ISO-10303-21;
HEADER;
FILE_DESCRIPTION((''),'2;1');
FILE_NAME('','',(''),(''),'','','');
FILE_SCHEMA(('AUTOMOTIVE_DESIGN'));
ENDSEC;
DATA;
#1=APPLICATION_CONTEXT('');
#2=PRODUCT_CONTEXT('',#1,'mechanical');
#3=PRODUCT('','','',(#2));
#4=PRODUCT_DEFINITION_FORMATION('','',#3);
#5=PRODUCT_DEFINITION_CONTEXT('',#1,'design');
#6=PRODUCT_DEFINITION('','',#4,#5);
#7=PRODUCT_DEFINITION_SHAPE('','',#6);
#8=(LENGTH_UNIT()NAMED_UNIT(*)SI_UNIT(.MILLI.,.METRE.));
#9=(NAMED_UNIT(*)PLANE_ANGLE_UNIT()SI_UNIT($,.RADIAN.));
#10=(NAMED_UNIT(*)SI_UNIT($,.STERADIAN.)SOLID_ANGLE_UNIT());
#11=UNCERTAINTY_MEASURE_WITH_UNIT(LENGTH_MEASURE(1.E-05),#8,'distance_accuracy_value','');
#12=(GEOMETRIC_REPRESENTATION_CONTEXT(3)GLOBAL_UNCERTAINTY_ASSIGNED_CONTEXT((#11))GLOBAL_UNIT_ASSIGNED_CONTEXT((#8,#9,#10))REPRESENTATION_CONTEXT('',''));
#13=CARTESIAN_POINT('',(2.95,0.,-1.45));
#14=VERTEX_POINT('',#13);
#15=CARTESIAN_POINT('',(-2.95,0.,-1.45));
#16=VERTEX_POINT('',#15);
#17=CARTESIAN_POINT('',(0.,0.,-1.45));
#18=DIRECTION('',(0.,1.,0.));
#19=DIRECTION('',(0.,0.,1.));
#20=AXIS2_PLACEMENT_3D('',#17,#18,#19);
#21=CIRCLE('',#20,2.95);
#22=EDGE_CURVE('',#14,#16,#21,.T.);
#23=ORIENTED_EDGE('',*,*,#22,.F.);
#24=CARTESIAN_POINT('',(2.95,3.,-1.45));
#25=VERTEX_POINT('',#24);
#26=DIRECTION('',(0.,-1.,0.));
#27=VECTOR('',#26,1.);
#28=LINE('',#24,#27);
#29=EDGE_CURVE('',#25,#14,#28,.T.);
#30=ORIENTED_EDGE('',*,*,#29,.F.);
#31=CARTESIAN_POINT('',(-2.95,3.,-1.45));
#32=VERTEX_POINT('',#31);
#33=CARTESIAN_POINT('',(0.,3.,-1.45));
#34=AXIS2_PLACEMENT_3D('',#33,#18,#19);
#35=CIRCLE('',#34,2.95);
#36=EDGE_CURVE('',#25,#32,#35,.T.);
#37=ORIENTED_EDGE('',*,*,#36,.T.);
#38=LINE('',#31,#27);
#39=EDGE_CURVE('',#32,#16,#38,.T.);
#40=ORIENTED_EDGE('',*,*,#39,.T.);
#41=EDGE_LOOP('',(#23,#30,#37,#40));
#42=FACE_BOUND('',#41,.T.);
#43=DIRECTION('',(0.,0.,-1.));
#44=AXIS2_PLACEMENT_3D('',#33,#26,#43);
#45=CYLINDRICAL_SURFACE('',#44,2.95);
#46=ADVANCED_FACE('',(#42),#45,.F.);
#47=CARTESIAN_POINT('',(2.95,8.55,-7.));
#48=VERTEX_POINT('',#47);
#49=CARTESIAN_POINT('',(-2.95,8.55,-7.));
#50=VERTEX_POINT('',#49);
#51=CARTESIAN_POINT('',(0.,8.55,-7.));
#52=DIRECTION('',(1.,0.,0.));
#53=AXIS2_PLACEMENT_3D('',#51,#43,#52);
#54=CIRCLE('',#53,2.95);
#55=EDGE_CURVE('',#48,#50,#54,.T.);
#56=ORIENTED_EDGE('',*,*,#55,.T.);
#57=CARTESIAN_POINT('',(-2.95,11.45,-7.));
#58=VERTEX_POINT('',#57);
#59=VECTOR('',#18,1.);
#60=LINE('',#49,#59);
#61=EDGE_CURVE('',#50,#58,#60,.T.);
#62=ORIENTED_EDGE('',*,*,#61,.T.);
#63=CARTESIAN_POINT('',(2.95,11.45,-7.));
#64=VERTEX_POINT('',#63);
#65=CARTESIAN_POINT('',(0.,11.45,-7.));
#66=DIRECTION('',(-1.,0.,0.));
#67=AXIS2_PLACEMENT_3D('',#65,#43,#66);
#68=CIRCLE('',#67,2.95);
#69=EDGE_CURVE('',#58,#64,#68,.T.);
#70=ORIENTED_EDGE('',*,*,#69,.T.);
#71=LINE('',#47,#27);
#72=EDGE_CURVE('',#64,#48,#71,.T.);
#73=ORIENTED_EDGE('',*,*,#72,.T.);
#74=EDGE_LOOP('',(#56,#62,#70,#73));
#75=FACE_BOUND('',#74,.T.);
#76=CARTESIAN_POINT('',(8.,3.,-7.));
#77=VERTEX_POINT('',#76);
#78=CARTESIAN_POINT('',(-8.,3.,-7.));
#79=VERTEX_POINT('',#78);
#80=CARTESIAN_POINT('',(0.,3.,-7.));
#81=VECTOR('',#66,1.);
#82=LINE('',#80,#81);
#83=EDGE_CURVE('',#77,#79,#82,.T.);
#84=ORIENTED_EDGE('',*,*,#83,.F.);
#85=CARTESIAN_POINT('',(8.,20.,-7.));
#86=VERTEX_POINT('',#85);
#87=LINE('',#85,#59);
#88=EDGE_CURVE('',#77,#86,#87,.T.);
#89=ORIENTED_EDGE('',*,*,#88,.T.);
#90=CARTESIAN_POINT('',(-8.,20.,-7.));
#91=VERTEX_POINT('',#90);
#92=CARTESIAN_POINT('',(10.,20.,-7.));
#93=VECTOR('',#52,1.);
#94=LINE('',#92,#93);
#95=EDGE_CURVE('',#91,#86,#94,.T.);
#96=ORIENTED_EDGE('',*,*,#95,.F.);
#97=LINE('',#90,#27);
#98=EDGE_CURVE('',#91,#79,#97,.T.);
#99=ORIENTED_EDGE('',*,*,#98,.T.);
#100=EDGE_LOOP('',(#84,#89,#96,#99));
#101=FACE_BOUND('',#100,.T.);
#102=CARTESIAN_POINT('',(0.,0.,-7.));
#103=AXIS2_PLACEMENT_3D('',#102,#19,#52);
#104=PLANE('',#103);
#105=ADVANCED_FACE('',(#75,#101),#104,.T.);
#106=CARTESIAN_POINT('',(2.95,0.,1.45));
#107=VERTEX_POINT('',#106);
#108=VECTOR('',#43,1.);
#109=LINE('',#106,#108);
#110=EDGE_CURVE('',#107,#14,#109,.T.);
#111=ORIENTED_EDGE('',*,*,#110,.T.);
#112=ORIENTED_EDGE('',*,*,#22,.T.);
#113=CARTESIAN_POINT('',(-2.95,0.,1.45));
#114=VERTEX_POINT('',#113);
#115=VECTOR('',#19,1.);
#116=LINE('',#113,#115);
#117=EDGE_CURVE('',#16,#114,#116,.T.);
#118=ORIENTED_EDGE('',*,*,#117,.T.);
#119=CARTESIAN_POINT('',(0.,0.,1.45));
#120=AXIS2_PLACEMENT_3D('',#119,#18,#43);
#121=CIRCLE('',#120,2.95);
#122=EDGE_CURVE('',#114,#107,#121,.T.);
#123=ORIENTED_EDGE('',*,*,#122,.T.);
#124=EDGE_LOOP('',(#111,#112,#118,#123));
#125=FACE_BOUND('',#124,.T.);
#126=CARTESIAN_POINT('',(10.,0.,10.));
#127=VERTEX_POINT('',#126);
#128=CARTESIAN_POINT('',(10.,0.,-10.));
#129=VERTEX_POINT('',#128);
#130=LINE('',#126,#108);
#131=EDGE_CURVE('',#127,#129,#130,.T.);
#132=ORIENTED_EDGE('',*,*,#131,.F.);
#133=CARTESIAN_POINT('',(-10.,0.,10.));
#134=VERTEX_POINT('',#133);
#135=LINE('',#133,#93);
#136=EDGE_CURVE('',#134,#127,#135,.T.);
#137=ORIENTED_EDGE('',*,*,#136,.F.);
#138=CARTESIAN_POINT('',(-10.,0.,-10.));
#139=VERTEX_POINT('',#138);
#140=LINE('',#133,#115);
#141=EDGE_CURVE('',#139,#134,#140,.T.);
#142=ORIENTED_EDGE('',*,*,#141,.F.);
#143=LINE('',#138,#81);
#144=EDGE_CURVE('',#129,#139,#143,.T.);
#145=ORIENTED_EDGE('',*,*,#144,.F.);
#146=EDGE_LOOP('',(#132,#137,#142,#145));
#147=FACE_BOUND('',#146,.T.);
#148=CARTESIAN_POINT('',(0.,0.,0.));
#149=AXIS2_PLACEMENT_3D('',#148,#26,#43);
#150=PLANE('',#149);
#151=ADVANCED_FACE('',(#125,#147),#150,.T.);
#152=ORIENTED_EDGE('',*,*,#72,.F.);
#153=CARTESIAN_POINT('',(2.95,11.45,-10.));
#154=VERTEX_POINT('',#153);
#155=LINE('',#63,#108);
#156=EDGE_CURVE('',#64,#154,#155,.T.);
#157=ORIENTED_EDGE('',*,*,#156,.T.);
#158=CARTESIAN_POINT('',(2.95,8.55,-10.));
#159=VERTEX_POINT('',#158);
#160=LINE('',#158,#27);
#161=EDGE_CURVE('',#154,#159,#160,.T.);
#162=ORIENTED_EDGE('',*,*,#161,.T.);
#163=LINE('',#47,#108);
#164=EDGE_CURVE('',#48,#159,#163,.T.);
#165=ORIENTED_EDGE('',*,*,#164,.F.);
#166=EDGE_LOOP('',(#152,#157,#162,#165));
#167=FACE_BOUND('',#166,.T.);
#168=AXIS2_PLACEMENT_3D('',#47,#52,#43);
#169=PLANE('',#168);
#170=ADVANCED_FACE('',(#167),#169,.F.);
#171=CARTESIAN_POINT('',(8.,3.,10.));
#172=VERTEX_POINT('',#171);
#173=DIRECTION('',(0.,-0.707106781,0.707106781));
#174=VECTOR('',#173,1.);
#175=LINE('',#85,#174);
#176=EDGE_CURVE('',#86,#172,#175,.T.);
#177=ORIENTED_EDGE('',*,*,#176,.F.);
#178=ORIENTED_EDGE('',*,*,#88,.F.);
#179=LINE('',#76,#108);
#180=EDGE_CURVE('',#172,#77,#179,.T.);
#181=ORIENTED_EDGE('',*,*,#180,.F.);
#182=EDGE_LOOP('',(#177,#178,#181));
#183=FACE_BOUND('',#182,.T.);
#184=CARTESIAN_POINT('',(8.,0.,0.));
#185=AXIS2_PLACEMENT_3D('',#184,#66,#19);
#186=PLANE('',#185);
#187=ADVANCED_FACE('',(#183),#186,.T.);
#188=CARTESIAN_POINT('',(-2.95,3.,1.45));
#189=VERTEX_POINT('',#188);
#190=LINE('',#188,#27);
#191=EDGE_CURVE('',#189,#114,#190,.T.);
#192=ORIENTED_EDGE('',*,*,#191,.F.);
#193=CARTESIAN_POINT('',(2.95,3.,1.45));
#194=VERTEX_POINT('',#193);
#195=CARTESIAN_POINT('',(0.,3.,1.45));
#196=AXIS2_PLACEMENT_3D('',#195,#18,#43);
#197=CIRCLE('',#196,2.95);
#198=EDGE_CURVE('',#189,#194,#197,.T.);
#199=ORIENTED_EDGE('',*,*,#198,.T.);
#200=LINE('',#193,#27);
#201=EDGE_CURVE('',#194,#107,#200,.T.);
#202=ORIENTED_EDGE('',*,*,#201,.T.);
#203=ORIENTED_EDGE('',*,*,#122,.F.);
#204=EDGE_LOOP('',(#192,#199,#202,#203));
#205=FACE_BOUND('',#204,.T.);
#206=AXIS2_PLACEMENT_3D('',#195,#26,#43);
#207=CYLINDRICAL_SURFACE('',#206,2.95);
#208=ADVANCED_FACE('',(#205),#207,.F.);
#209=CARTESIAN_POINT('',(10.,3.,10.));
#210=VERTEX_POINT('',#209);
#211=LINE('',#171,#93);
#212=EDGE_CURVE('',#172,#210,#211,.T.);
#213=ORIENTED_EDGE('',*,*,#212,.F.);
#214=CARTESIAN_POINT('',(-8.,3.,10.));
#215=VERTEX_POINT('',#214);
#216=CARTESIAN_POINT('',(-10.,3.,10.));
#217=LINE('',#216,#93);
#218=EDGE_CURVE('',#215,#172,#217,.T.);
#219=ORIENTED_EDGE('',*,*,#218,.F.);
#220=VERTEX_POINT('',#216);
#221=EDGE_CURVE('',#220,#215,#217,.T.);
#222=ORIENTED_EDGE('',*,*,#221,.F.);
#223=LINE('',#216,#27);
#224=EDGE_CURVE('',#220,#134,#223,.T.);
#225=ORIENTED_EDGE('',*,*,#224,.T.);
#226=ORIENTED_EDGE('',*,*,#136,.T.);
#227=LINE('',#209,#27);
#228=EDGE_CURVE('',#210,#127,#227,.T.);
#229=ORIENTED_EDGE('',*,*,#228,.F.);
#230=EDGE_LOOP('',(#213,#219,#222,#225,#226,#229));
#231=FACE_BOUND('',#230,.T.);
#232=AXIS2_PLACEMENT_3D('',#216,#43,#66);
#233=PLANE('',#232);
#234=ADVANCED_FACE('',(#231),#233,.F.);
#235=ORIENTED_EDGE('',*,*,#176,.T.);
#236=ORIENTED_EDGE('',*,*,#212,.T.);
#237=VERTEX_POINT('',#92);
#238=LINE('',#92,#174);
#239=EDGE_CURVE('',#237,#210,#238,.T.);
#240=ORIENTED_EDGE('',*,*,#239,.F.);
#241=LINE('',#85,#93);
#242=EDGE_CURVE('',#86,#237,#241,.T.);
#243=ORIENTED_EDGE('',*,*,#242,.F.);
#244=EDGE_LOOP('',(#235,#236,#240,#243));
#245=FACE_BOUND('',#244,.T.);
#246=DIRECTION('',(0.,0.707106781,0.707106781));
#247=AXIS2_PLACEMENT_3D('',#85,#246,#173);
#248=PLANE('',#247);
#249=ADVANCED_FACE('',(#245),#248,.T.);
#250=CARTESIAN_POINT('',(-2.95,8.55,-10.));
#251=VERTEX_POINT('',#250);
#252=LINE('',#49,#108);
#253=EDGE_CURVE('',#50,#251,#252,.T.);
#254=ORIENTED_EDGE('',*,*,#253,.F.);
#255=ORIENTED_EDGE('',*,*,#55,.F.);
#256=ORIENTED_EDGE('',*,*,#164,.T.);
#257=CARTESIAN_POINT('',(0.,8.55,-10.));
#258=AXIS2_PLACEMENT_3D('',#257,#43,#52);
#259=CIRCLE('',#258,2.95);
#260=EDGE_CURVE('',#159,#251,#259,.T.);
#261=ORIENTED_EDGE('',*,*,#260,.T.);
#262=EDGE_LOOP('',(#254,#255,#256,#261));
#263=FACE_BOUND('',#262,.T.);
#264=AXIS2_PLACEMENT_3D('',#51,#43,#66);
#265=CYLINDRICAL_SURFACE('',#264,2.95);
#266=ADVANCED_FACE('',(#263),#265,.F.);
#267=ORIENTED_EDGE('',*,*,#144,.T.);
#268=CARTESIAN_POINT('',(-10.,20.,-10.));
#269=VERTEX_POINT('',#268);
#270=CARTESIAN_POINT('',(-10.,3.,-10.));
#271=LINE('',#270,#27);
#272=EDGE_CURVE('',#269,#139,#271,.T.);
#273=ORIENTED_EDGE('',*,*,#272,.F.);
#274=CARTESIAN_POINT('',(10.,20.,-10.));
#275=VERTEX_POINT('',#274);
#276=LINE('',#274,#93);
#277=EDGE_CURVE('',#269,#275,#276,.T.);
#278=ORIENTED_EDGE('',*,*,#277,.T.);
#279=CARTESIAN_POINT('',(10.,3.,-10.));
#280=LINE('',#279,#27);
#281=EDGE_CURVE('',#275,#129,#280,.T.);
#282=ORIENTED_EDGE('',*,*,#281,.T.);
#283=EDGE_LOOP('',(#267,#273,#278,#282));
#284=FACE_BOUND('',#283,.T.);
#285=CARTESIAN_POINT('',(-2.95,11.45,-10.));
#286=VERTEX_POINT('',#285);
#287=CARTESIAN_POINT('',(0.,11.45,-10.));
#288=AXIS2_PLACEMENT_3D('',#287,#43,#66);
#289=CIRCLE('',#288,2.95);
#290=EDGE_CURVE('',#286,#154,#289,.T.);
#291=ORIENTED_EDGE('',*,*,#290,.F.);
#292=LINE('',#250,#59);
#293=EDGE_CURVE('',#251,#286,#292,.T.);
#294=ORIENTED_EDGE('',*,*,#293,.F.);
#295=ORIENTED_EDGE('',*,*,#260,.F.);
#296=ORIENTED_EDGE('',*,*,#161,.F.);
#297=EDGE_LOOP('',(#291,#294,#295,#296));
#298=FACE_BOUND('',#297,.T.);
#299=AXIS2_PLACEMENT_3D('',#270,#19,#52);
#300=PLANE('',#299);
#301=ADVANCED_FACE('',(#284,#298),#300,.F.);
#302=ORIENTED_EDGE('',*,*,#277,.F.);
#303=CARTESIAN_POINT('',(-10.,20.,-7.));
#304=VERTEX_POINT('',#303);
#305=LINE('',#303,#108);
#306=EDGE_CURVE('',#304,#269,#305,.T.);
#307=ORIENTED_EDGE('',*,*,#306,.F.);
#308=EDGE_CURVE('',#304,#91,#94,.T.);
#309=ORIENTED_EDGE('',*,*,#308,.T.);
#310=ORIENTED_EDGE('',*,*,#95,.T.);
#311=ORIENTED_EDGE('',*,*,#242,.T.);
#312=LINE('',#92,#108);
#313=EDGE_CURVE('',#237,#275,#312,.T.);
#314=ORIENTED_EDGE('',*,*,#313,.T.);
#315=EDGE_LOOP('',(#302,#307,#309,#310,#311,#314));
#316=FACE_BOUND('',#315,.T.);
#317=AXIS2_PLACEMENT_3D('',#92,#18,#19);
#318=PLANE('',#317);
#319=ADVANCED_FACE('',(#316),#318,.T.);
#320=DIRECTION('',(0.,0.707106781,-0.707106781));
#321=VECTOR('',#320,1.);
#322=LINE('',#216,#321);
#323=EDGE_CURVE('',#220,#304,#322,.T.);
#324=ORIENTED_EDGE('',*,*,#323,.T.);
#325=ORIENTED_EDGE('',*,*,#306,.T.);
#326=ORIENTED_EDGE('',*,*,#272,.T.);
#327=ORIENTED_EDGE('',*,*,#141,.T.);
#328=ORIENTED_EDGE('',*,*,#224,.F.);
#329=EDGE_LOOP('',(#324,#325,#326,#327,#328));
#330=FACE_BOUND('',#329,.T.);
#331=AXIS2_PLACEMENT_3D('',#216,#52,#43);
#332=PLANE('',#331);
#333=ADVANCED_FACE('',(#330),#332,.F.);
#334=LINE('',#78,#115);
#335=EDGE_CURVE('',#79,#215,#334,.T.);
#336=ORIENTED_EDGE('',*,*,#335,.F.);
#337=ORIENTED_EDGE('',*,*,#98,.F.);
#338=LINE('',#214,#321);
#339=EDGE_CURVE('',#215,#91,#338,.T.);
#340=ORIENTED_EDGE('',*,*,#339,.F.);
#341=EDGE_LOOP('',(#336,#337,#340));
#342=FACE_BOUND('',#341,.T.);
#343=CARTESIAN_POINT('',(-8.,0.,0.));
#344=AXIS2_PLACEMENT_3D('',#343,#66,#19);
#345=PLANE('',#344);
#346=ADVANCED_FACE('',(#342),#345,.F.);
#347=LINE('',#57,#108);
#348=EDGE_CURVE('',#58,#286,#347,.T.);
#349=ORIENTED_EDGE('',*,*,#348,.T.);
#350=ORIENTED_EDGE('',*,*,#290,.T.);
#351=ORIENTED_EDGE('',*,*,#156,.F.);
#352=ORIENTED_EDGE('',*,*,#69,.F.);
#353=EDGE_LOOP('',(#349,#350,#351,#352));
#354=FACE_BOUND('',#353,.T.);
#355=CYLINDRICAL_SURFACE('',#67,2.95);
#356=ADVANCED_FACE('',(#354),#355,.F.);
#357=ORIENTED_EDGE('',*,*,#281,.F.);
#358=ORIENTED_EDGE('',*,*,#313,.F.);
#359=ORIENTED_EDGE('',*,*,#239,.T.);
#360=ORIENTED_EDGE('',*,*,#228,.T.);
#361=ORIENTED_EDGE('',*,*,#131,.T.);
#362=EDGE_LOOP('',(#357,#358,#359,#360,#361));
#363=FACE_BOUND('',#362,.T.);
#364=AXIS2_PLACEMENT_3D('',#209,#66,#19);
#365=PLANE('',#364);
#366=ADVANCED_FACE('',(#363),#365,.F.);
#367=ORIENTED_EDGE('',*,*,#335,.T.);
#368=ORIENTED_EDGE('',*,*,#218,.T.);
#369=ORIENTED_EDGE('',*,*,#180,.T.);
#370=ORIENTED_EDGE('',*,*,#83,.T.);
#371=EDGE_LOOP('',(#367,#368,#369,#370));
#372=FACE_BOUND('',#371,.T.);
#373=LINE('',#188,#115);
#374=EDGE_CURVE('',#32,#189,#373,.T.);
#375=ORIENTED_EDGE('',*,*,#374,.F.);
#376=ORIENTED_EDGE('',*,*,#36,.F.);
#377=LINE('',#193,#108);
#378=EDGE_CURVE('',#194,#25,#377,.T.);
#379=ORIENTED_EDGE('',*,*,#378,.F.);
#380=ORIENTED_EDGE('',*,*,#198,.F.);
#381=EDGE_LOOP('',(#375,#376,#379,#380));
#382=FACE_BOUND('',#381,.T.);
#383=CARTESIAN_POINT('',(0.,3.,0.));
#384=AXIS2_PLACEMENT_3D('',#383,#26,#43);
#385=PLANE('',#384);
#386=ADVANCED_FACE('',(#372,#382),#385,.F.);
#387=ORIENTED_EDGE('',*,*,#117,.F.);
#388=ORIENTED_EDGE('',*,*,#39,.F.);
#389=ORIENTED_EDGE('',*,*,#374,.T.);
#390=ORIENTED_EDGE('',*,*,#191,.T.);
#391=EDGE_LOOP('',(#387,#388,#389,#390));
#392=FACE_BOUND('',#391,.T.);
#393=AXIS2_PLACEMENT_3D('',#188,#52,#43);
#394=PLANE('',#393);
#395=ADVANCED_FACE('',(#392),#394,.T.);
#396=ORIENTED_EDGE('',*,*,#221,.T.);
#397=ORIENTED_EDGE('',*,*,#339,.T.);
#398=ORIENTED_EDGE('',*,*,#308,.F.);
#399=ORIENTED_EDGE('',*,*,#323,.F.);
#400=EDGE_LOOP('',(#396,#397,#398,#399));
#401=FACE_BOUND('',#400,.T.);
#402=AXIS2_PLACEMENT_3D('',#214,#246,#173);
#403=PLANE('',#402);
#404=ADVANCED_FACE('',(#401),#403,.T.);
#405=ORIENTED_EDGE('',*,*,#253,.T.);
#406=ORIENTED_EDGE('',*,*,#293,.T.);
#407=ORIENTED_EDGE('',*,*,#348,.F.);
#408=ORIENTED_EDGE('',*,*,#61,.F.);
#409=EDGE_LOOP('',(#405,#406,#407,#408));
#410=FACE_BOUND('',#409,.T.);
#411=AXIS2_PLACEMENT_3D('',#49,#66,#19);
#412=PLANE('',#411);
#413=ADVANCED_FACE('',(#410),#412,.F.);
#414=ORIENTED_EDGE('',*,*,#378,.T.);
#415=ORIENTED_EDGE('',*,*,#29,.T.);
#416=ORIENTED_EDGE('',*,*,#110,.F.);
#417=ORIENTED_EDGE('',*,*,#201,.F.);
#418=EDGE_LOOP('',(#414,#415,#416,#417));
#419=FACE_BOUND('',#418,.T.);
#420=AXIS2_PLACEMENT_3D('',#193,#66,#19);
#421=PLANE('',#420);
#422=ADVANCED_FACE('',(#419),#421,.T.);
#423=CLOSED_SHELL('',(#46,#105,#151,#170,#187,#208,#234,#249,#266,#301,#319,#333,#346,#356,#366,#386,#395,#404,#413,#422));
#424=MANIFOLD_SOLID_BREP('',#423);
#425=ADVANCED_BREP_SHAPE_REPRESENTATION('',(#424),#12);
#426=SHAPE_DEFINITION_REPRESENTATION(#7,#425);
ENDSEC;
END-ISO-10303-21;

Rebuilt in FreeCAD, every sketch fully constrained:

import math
import FreeCAD as App
import Part
import Sketcher


def add_polygon(sketch, points):
    """Adds a closed chain of lines whose ends are joined by coincident constraints."""
    first, n = sketch.GeometryCount, len(points)
    for a, b in zip(points, points[1:] + points[:1]):
        sketch.addGeometry(Part.LineSegment(App.Vector(*a, 0), App.Vector(*b, 0)), False)
    for i in range(n):
        sketch.addConstraint(Sketcher.Constraint("Coincident", first + i, 2, first + (i + 1) % n, 1))

doc = App.newDocument("Part")
params = doc.addObject("Spreadsheet::Sheet", "Params")
for row, (alias, value) in enumerate([
    ("sketch1_width", "20 mm"),
    ("sketch1_radius", "2.95 mm"),
    ("sketch1_height", "2.9 mm"),
    ("pad1_length", "3 mm"),
    ("sketch2_width", "20 mm"),
    ("sketch2_radius", "2.95 mm"),
    ("sketch2_height", "2.9 mm"),
    ("pad2_length", "3 mm"),
    ("sketch3_width", "17 mm"),
    ("pad3_length", "2 mm"),
    ("sketch4_width", "17 mm"),
    ("pad4_length", "2 mm"),
], start=1):
    params.set(f"A{row}", alias)
    params.set(f"B{row}", "=" + value)
    params.setAlias(f"B{row}", alias)

body = doc.addObject("PartDesign::Body", "Body")

# Sketch on XZ plane
sketch1 = body.newObject("Sketcher::SketchObject", "Sketch")
sketch1.AttachmentSupport = (doc.getObject("XZ_Plane"), [""])
sketch1.MapMode = "FlatFace"
add_polygon(sketch1, [(-10, -10), (-10, 10), (10, 10), (10, -10)])  # lines 0-3
sketch1.addGeometry(Part.ArcOfCircle(Part.Circle(App.Vector(0, 1.45, 0), App.Vector(0, 0, 1), 2.95), math.radians(0), math.radians(180)), False)  # 4
sketch1.addGeometry(Part.LineSegment(App.Vector(-2.95, 1.45, 0), App.Vector(-2.95, -1.45, 0)), False)  # 5
sketch1.addGeometry(Part.ArcOfCircle(Part.Circle(App.Vector(0, -1.45, 0), App.Vector(0, 0, 1), 2.95), math.radians(180), math.radians(360)), False)  # 6
sketch1.addGeometry(Part.LineSegment(App.Vector(2.95, -1.45, 0), App.Vector(2.95, 1.45, 0)), False)  # 7
sketch1.addConstraint(Sketcher.Constraint("Tangent", 4, 2, 5, 1))
sketch1.addConstraint(Sketcher.Constraint("Tangent", 5, 2, 6, 1))
sketch1.addConstraint(Sketcher.Constraint("Tangent", 6, 2, 7, 1))
sketch1.addConstraint(Sketcher.Constraint("Tangent", 7, 2, 4, 1))
sketch1.addConstraint(Sketcher.Constraint("Vertical", 0))
sketch1.addConstraint(Sketcher.Constraint("Horizontal", 1))
sketch1.addConstraint(Sketcher.Constraint("Vertical", 2))
sketch1.addConstraint(Sketcher.Constraint("Horizontal", 3))
sketch1.addConstraint(Sketcher.Constraint("Vertical", 5))
sketch1.addConstraint(Sketcher.Constraint("Vertical", 7))
sketch1.addConstraint(Sketcher.Constraint("Symmetric", 4, 3, 6, 3, -1, 1))
sketch1.addConstraint(Sketcher.Constraint("Symmetric", 0, 2, 2, 2, -1, 1))
sketch1.addConstraint(Sketcher.Constraint("Equal", 3, 0))
sketch1.addConstraint(Sketcher.Constraint("DistanceX", 1, 1, 1, 2, 20.0))
sketch1.addConstraint(Sketcher.Constraint("Radius", 4, 2.95))
sketch1.addConstraint(Sketcher.Constraint("DistanceY", 5, 2, 5, 1, 2.9))
sketch1.setExpression("Constraints[17]", "Params.sketch1_width")
sketch1.setExpression("Constraints[18]", "Params.sketch1_radius")
sketch1.setExpression("Constraints[19]", "Params.sketch1_height")
pad1 = body.newObject("PartDesign::Pad", "Pad")
pad1.Profile = sketch1
pad1.setExpression("Length", "Params.pad1_length")
pad1.Reversed = True

# Sketch on XY plane
sketch2 = body.newObject("Sketcher::SketchObject", "Sketch001")
sketch2.AttachmentSupport = (doc.getObject("XY_Plane"), [""])
sketch2.MapMode = "FlatFace"
sketch2.AttachmentOffset = App.Placement(App.Vector(0, 0, -10), App.Rotation())
add_polygon(sketch2, [(10, 20), (10, 0), (-10, 0), (-10, 20)])  # lines 0-3
sketch2.addGeometry(Part.ArcOfCircle(Part.Circle(App.Vector(0, 8.55, 0), App.Vector(0, 0, 1), 2.95), math.radians(180), math.radians(360)), False)  # 4
sketch2.addGeometry(Part.LineSegment(App.Vector(2.95, 8.55, 0), App.Vector(2.95, 11.45, 0)), False)  # 5
sketch2.addGeometry(Part.ArcOfCircle(Part.Circle(App.Vector(0, 11.45, 0), App.Vector(0, 0, 1), 2.95), math.radians(0), math.radians(180)), False)  # 6
sketch2.addGeometry(Part.LineSegment(App.Vector(-2.95, 11.45, 0), App.Vector(-2.95, 8.55, 0)), False)  # 7
sketch2.addConstraint(Sketcher.Constraint("Tangent", 4, 2, 5, 1))
sketch2.addConstraint(Sketcher.Constraint("Tangent", 5, 2, 6, 1))
sketch2.addConstraint(Sketcher.Constraint("Tangent", 6, 2, 7, 1))
sketch2.addConstraint(Sketcher.Constraint("Tangent", 7, 2, 4, 1))
sketch2.addConstraint(Sketcher.Constraint("Vertical", 0))
sketch2.addConstraint(Sketcher.Constraint("Horizontal", 1))
sketch2.addConstraint(Sketcher.Constraint("Vertical", 2))
sketch2.addConstraint(Sketcher.Constraint("Horizontal", 3))
sketch2.addConstraint(Sketcher.Constraint("Vertical", 5))
sketch2.addConstraint(Sketcher.Constraint("Vertical", 7))
sketch2.addConstraint(Sketcher.Constraint("Symmetric", 0, 2, 1, 2, -1, 1))
sketch2.addConstraint(Sketcher.Constraint("PointOnObject", 4, 3, -2))
sketch2.addConstraint(Sketcher.Constraint("Equal", 3, 0))
sketch2.addConstraint(Sketcher.Constraint("DistanceX", 1, 2, 1, 1, 20.0))
sketch2.addConstraint(Sketcher.Constraint("Radius", 4, 2.95))
sketch2.addConstraint(Sketcher.Constraint("DistanceY", 5, 1, 5, 2, 2.9))
sketch2.addConstraint(Sketcher.Constraint("DistanceY", -1, 1, 4, 3, 8.55))
sketch2.setExpression("Constraints[17]", "Params.sketch2_width")
sketch2.setExpression("Constraints[18]", "Params.sketch2_radius")
sketch2.setExpression("Constraints[19]", "Params.sketch2_height")
pad2 = body.newObject("PartDesign::Pad", "Pad001")
pad2.Profile = sketch2
pad2.setExpression("Length", "Params.pad2_length")

# Sketch on YZ plane
sketch3 = body.newObject("Sketcher::SketchObject", "Sketch002")
sketch3.AttachmentSupport = (doc.getObject("YZ_Plane"), [""])
sketch3.MapMode = "FlatFace"
sketch3.AttachmentOffset = App.Placement(App.Vector(0, 0, 10), App.Rotation())
add_polygon(sketch3, [(20, -7), (3, 10), (3, -7)])  # lines 0-2
sketch3.addConstraint(Sketcher.Constraint("Vertical", 1))
sketch3.addConstraint(Sketcher.Constraint("Horizontal", 2))
sketch3.addConstraint(Sketcher.Constraint("Equal", 2, 1))
sketch3.addConstraint(Sketcher.Constraint("DistanceX", 2, 1, 2, 2, 17.0))
sketch3.addConstraint(Sketcher.Constraint("DistanceX", -1, 1, 0, 2, 3.0))
sketch3.addConstraint(Sketcher.Constraint("DistanceY", -1, 1, 0, 2, 10.0))
sketch3.setExpression("Constraints[6]", "Params.sketch3_width")
pad3 = body.newObject("PartDesign::Pad", "Pad002")
pad3.Profile = sketch3
pad3.setExpression("Length", "Params.pad3_length")
pad3.Reversed = True

# Sketch on YZ plane
sketch4 = body.newObject("Sketcher::SketchObject", "Sketch003")
sketch4.AttachmentSupport = (doc.getObject("YZ_Plane"), [""])
sketch4.MapMode = "FlatFace"
sketch4.AttachmentOffset = App.Placement(App.Vector(0, 0, -10), App.Rotation())
add_polygon(sketch4, [(20, -7), (3, -7), (3, 10)])  # lines 0-2
sketch4.addConstraint(Sketcher.Constraint("Horizontal", 0))
sketch4.addConstraint(Sketcher.Constraint("Vertical", 1))
sketch4.addConstraint(Sketcher.Constraint("Equal", 0, 1))
sketch4.addConstraint(Sketcher.Constraint("DistanceX", 0, 2, 0, 1, 17.0))
sketch4.addConstraint(Sketcher.Constraint("DistanceX", -1, 1, 0, 2, 3.0))
sketch4.addConstraint(Sketcher.Constraint("DistanceY", 0, 2, -1, 1, 7.0))
sketch4.setExpression("Constraints[6]", "Params.sketch4_width")
pad4 = body.newObject("PartDesign::Pad", "Pad003")
pad4.Profile = sketch4
pad4.setExpression("Length", "Params.pad4_length")

doc.recompute()
